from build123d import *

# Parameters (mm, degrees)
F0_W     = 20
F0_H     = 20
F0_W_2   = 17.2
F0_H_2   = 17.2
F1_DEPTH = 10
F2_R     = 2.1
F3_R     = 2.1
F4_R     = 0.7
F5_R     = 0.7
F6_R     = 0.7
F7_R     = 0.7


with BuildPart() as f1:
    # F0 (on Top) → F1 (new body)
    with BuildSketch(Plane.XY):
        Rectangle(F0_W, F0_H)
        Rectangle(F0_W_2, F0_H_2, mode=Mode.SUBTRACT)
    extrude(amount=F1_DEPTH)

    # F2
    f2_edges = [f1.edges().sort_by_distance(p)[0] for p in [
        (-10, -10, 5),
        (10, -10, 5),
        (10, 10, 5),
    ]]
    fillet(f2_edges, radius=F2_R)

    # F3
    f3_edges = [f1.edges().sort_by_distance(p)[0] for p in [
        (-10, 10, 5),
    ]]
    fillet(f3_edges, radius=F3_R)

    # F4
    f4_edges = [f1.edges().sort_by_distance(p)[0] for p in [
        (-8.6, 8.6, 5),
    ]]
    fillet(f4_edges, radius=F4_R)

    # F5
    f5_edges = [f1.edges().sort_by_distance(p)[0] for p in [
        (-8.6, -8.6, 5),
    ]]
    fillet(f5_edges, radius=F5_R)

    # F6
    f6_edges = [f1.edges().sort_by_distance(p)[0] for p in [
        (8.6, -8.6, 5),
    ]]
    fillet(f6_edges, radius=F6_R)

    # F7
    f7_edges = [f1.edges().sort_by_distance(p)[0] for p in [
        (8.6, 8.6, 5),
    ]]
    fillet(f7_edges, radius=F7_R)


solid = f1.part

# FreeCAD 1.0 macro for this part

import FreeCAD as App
import Part
import Sketcher

V = App.Vector


def edges_at(feature, points):
    """Names of the edges that pass closest to the given points."""
    edges = feature.Shape.Edges
    near = lambda p: min(range(len(edges)), key=lambda i: edges[i].distToShape(Part.Vertex(*p))[0])
    return sorted({f"Edge{near(p) + 1}" for p in points})

doc = App.newDocument("Part")
body = doc.addObject("PartDesign::Body", "Body")

sketch1 = body.newObject("Sketcher::SketchObject", "Sketch")
sketch1.AttachmentSupport = (doc.getObject("XY_Plane"), [""])
sketch1.MapMode = "FlatFace"
sketch1.addGeometry([
    Part.LineSegment(V(-10, 10, 0), V(-10, -10, 0)),
    Part.LineSegment(V(-10, -10, 0), V(10, -10, 0)),
    Part.LineSegment(V(10, -10, 0), V(10, 10, 0)),
    Part.LineSegment(V(10, 10, 0), V(-10, 10, 0)),
    Part.LineSegment(V(9, -9, 0), V(-9, -9, 0)),
    Part.LineSegment(V(-9, -9, 0), V(-9, 9, 0)),
    Part.LineSegment(V(-9, 9, 0), V(9, 9, 0)),
    Part.LineSegment(V(9, 9, 0), V(9, -9, 0)),
], False)
sketch1.addConstraint([
    Sketcher.Constraint("Coincident", 0, 2, 1, 1),
    Sketcher.Constraint("Coincident", 1, 2, 2, 1),
    Sketcher.Constraint("Coincident", 2, 2, 3, 1),
    Sketcher.Constraint("Coincident", 3, 2, 0, 1),
    Sketcher.Constraint("Coincident", 4, 2, 5, 1),
    Sketcher.Constraint("Coincident", 5, 2, 6, 1),
    Sketcher.Constraint("Coincident", 6, 2, 7, 1),
    Sketcher.Constraint("Coincident", 7, 2, 4, 1),
    Sketcher.Constraint("Vertical", 0),
    Sketcher.Constraint("Horizontal", 1),
    Sketcher.Constraint("Vertical", 2),
    Sketcher.Constraint("Horizontal", 3),
    Sketcher.Constraint("Horizontal", 4),
    Sketcher.Constraint("Vertical", 5),
    Sketcher.Constraint("Horizontal", 6),
    Sketcher.Constraint("Vertical", 7),
    Sketcher.Constraint("Symmetric", 0, 2, 2, 2, -1, 1),
    Sketcher.Constraint("Symmetric", 4, 2, 6, 2, -1, 1),
    Sketcher.Constraint("Equal", 3, 0),
    Sketcher.Constraint("Equal", 6, 5),
    Sketcher.Constraint("DistanceX", 1, 1, 1, 2, 20.0),
    Sketcher.Constraint("DistanceX", 4, 2, 4, 1, 17.2),
])
pad1 = body.newObject("PartDesign::Pad", "Pad")
pad1.Profile = sketch1
pad1.Length = 10
doc.recompute()

fillet = body.newObject("PartDesign::Fillet", "Fillet")
fillet.Base = (pad1, edges_at(pad1, [(-10, -10, 5), (10, -10, 5), (10, 10, 5)]))
fillet.Radius = 2.1
doc.recompute()

fillet2 = body.newObject("PartDesign::Fillet", "Fillet001")
fillet2.Base = (fillet, edges_at(fillet, [(-10, 10, 5)]))
fillet2.Radius = 2.1
doc.recompute()

fillet3 = body.newObject("PartDesign::Fillet", "Fillet002")
fillet3.Base = (fillet2, edges_at(fillet2, [(-8.6, 8.6, 5)]))
fillet3.Radius = 0.7
doc.recompute()

fillet4 = body.newObject("PartDesign::Fillet", "Fillet003")
fillet4.Base = (fillet3, edges_at(fillet3, [(-8.6, -8.6, 5)]))
fillet4.Radius = 0.7
doc.recompute()

fillet5 = body.newObject("PartDesign::Fillet", "Fillet004")
fillet5.Base = (fillet4, edges_at(fillet4, [(8.6, -8.6, 5)]))
fillet5.Radius = 0.7
doc.recompute()

fillet6 = body.newObject("PartDesign::Fillet", "Fillet005")
fillet6.Base = (fillet5, edges_at(fillet5, [(8.6, 8.6, 5)]))
fillet6.Radius = 0.7

doc.recompute()
